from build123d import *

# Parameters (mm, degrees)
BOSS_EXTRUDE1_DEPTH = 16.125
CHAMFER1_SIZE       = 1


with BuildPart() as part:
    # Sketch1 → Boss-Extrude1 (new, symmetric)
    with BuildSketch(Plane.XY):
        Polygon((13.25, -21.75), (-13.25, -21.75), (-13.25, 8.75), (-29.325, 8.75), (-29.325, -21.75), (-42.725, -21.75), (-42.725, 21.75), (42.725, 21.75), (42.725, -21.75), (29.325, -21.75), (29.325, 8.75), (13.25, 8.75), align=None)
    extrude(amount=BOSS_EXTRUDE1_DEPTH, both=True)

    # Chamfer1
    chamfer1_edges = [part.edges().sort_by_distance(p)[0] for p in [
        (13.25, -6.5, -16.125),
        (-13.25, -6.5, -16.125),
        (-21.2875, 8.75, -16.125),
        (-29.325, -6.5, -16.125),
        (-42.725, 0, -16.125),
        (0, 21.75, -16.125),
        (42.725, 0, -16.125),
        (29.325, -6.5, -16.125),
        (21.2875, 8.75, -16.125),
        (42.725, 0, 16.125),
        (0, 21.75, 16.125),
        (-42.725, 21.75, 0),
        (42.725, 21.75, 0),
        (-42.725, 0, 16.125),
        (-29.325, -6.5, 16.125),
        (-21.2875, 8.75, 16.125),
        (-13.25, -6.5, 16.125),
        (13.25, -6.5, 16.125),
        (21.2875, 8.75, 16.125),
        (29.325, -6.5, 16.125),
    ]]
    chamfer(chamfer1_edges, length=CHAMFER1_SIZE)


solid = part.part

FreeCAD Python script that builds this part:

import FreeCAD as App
import Part
import Sketcher

V = App.Vector


def edges_at(feature, points):
    """Names of the edges that pass closest to the given points."""
    edges = feature.Shape.Edges
    near = lambda p: min(range(len(edges)), key=lambda i: edges[i].distToShape(Part.Vertex(*p))[0])
    return sorted({f"Edge{near(p) + 1}" for p in points})

doc = App.newDocument("Part")
body = doc.addObject("PartDesign::Body", "Body")

# Sketch on XY plane
sketch1 = doc.addObject("Sketcher::SketchObject", "Sketch")
body.addObject(sketch1)
sketch1.AttachmentSupport = (doc.XY_Plane, [""])
sketch1.MapMode = "FlatFace"
sketch1.addGeometry([
    Part.LineSegment(V(-13.25, -21.75, 0), V(13.25, -21.75, 0)),  # 0
    Part.LineSegment(V(13.25, -21.75, 0), V(13.25, 8.75, 0)),  # 1
    Part.LineSegment(V(13.25, 8.75, 0), V(29.325, 8.75, 0)),  # 2
    Part.LineSegment(V(29.325, 8.75, 0), V(29.325, -21.75, 0)),  # 3
    Part.LineSegment(V(29.325, -21.75, 0), V(42.725, -21.75, 0)),  # 4
    Part.LineSegment(V(42.725, -21.75, 0), V(42.725, 21.75, 0)),  # 5
    Part.LineSegment(V(42.725, 21.75, 0), V(-42.725, 21.75, 0)),  # 6
    Part.LineSegment(V(-42.725, 21.75, 0), V(-42.725, -21.75, 0)),  # 7
    Part.LineSegment(V(-42.725, -21.75, 0), V(-29.325, -21.75, 0)),  # 8
    Part.LineSegment(V(-29.325, -21.75, 0), V(-29.325, 8.75, 0)),  # 9
    Part.LineSegment(V(-29.325, 8.75, 0), V(-13.25, 8.75, 0)),  # 10
    Part.LineSegment(V(-13.25, 8.75, 0), V(-13.25, -21.75, 0)),  # 11
], False)
sketch1.addConstraint([
    Sketcher.Constraint("Coincident", 0, 2, 1, 1),
    Sketcher.Constraint("Coincident", 1, 2, 2, 1),
    Sketcher.Constraint("Coincident", 2, 2, 3, 1),
    Sketcher.Constraint("Coincident", 3, 2, 4, 1),
    Sketcher.Constraint("Coincident", 4, 2, 5, 1),
    Sketcher.Constraint("Coincident", 5, 2, 6, 1),
    Sketcher.Constraint("Coincident", 6, 2, 7, 1),
    Sketcher.Constraint("Coincident", 7, 2, 8, 1),
    Sketcher.Constraint("Coincident", 8, 2, 9, 1),
    Sketcher.Constraint("Coincident", 9, 2, 10, 1),
    Sketcher.Constraint("Coincident", 10, 2, 11, 1),
    Sketcher.Constraint("Coincident", 11, 2, 0, 1),
    Sketcher.Constraint("Horizontal", 0),
    Sketcher.Constraint("Vertical", 1),
    Sketcher.Constraint("Horizontal", 2),
    Sketcher.Constraint("Vertical", 3),
    Sketcher.Constraint("Horizontal", 4),
    Sketcher.Constraint("Vertical", 5),
    Sketcher.Constraint("Horizontal", 6),
    Sketcher.Constraint("Vertical", 7),
    Sketcher.Constraint("Horizontal", 8),
    Sketcher.Constraint("Vertical", 9),
    Sketcher.Constraint("Horizontal", 10),
    Sketcher.Constraint("Vertical", 11),
    Sketcher.Constraint("Symmetric", 4, 2, 6, 2, -1, 1),
    Sketcher.Constraint("Symmetric", 3, 2, 8, 2, -2),
    Sketcher.Constraint("Symmetric", 1, 2, 10, 2, -2),
    Sketcher.Constraint("Horizontal", 0, 2, 3, 2),
    Sketcher.Constraint("DistanceX", 0, 1, 0, 2, 26.5),
    Sketcher.Constraint("DistanceX", 4, 1, 4, 2, 13.4),
    Sketcher.Constraint("DistanceY", 1, 1, 1, 2, 30.5),
    Sketcher.Constraint("DistanceY", 5, 1, 5, 2, 43.5),
    Sketcher.Constraint("DistanceX", 6, 2, 6, 1, 85.45),
])
pad1 = doc.addObject("PartDesign::Pad", "Pad")
body.addObject(pad1)
pad1.Profile = sketch1
pad1.Length = 32.25
pad1.Midplane = True
doc.recompute()

chamfer = doc.addObject("PartDesign::Chamfer", "Chamfer")
body.addObject(chamfer)
chamfer.Base = (pad1, edges_at(pad1, [
    (13.25, -6.5, -16.125),
    (-13.25, -6.5, -16.125),
    (-21.288, 8.75, -16.125),
    (-29.325, -6.5, -16.125),
    (-42.725, 0, -16.125),
    (0, 21.75, -16.125),
    (42.725, 0, -16.125),
    (29.325, -6.5, -16.125),
    (21.288, 8.75, -16.125),
    (42.725, 0, 16.125),
    (0, 21.75, 16.125),
    (-42.725, 21.75, 0),
    (42.725, 21.75, 0),
    (-42.725, 0, 16.125),
    (-29.325, -6.5, 16.125),
    (-21.288, 8.75, 16.125),
    (-13.25, -6.5, 16.125),
    (13.25, -6.5, 16.125),
    (21.288, 8.75, 16.125),
    (29.325, -6.5, 16.125),
]))
chamfer.Size = 1

doc.recompute()
